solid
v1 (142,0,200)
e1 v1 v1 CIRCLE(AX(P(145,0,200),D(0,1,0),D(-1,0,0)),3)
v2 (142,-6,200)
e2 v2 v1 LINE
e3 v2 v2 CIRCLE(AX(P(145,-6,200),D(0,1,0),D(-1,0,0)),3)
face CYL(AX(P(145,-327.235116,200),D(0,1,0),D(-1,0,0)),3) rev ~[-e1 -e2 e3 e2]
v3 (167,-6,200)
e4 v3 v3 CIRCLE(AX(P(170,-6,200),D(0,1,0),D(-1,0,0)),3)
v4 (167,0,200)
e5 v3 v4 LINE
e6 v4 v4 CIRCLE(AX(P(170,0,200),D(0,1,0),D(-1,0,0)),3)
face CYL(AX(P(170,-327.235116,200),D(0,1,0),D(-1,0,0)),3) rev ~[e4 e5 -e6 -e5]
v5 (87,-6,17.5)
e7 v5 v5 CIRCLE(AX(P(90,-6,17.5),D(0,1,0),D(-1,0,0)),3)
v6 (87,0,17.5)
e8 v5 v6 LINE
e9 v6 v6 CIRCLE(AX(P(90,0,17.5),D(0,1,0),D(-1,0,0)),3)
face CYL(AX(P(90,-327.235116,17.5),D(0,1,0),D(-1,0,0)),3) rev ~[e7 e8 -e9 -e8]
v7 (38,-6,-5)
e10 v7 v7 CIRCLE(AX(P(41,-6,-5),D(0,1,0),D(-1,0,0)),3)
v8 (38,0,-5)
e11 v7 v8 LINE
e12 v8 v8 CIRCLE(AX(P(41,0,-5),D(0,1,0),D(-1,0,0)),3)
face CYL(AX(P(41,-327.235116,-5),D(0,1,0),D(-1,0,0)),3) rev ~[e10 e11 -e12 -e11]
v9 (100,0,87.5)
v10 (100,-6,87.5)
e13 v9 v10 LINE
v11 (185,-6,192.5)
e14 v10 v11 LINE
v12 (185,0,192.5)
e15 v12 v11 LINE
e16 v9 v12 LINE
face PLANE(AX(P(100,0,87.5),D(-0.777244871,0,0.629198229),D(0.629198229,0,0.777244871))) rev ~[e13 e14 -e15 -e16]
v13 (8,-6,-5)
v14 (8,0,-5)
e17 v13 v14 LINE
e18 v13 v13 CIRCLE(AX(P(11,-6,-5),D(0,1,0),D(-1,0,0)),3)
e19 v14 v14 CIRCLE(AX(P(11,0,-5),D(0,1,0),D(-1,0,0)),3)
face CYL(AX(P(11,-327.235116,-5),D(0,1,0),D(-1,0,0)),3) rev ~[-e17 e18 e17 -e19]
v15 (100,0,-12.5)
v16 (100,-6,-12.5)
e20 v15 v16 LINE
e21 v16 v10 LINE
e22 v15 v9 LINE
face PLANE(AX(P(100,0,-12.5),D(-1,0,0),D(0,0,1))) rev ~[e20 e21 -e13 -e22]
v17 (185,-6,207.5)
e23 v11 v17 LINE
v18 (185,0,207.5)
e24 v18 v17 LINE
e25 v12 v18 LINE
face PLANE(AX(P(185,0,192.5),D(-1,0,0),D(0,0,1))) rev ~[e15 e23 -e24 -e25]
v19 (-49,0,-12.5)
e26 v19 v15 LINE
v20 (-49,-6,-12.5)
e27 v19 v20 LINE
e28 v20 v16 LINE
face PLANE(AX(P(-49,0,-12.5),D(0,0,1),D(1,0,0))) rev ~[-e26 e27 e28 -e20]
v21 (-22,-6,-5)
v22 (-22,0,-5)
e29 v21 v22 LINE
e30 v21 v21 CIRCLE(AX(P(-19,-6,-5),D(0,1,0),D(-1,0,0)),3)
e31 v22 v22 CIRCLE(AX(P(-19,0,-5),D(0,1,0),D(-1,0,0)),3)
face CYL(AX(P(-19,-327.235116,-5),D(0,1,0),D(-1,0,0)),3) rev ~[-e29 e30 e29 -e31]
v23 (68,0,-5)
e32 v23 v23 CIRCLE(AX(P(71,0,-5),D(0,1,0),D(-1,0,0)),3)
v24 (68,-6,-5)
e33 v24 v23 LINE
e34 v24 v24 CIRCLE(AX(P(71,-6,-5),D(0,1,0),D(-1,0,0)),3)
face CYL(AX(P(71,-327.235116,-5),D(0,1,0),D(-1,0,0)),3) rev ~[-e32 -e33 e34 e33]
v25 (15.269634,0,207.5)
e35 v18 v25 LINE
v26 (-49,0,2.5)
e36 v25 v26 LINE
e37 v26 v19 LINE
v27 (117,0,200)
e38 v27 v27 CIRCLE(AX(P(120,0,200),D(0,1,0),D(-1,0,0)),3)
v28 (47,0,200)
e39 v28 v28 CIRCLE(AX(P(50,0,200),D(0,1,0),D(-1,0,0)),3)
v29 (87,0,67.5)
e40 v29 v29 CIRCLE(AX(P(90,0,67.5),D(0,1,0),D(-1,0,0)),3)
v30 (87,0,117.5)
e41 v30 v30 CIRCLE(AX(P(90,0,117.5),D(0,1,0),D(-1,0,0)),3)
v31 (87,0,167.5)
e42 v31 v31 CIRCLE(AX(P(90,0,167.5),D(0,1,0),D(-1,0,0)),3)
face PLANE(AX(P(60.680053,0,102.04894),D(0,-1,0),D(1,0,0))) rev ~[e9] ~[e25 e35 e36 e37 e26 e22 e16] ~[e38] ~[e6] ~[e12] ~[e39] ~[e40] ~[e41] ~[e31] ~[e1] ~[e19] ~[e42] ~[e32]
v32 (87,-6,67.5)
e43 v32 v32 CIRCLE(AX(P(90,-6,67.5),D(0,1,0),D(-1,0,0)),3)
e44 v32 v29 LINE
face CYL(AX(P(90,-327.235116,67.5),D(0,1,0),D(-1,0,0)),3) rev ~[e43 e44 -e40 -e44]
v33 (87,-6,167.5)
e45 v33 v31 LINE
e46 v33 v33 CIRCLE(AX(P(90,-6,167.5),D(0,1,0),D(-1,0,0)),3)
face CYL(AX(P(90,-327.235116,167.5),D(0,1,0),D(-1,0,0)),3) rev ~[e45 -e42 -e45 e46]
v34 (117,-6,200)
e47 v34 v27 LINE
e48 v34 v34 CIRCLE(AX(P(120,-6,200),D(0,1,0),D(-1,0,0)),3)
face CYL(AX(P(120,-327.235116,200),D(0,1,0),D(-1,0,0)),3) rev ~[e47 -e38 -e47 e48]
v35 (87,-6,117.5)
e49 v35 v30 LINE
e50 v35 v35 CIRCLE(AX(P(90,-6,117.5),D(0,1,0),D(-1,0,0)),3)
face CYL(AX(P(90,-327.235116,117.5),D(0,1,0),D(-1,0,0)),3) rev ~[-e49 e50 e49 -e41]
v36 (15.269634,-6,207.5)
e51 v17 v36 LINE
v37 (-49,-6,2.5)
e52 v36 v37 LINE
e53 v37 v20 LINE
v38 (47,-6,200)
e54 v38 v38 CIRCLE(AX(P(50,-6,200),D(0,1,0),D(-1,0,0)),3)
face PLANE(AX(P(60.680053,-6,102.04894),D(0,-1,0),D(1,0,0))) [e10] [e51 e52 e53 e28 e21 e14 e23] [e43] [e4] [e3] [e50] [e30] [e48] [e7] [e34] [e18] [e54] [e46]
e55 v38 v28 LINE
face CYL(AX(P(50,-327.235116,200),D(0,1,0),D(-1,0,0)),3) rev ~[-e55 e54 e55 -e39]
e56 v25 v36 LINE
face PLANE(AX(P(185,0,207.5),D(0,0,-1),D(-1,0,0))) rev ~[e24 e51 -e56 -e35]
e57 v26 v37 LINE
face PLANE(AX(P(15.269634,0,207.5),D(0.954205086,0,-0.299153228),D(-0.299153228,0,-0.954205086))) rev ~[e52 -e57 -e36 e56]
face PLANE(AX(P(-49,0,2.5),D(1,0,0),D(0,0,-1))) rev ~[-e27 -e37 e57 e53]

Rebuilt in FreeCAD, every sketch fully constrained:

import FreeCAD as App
import Part
import Sketcher
from FreeCAD import Vector

doc = App.newDocument("Part")
body = doc.addObject("PartDesign::Body", "Body")

sketch1 = doc.addObject("Sketcher::SketchObject", "Sketch")
body.addObject(sketch1)
sketch1.AttachmentSupport = (doc.XZ_Plane, [""])
sketch1.MapMode = "FlatFace"
sketch1.addGeometry([
    Part.LineSegment(Vector(-49, -12.5, 0), Vector(100, -12.5, 0)),
    Part.LineSegment(Vector(100, -12.5, 0), Vector(100, 87.5, 0)),
    Part.LineSegment(Vector(100, 87.5, 0), Vector(185, 192.5, 0)),
    Part.LineSegment(Vector(185, 192.5, 0), Vector(185, 207.5, 0)),
    Part.LineSegment(Vector(185, 207.5, 0), Vector(15.269634, 207.5, 0)),
    Part.LineSegment(Vector(15.269634, 207.5, 0), Vector(-49, 2.5, 0)),
    Part.LineSegment(Vector(-49, 2.5, 0), Vector(-49, -12.5, 0)),
], False)
sketch1.addConstraint([
    Sketcher.Constraint("Coincident", 0, 2, 1, 1),
    Sketcher.Constraint("Coincident", 1, 2, 2, 1),
    Sketcher.Constraint("Coincident", 2, 2, 3, 1),
    Sketcher.Constraint("Coincident", 3, 2, 4, 1),
    Sketcher.Constraint("Coincident", 4, 2, 5, 1),
    Sketcher.Constraint("Coincident", 5, 2, 6, 1),
    Sketcher.Constraint("Coincident", 6, 2, 0, 1),
    Sketcher.Constraint("Horizontal", 0),
    Sketcher.Constraint("Vertical", 1),
    Sketcher.Constraint("Vertical", 3),
    Sketcher.Constraint("Horizontal", 4),
    Sketcher.Constraint("Vertical", 6),
    Sketcher.Constraint("Equal", 3, 6),
    Sketcher.Constraint("DistanceX", 0, 1, 0, 2, 149.0),
    Sketcher.Constraint("DistanceY", 1, 1, 1, 2, 100.0),
    Sketcher.Constraint("DistanceY", 3, 1, 3, 2, 15.0),
    Sketcher.Constraint("DistanceX", -1, 1, 0, 2, 100.0),
    Sketcher.Constraint("DistanceX", -1, 1, 2, 2, 185.0),
    Sketcher.Constraint("DistanceY", 1, 2, 2, 2, 105.0),
    Sketcher.Constraint("DistanceY", 0, 2, -1, 1, 12.5),
    Sketcher.Constraint("Distance", 5, 214.838511),
])
pad1 = doc.addObject("PartDesign::Pad", "Pad")
body.addObject(pad1)
pad1.Profile = sketch1
pad1.Length = 6

sketch2 = doc.addObject("Sketcher::SketchObject", "Sketch001")
body.addObject(sketch2)
sketch2.AttachmentSupport = (doc.XZ_Plane, [""])
sketch2.MapMode = "FlatFace"
sketch2.AttachmentOffset = App.Placement(Vector(0, 0, 6), App.Rotation())
sketch2.addGeometry([
    Part.Circle(Vector(120, 200, 0), Vector(0, 0, 1), 3),
    Part.Circle(Vector(145, 200, 0), Vector(0, 0, 1), 3),
    Part.Circle(Vector(170, 200, 0), Vector(0, 0, 1), 3),
    Part.Circle(Vector(90, 167.5, 0), Vector(0, 0, 1), 3),
    Part.Circle(Vector(90, 117.5, 0), Vector(0, 0, 1), 3),
    Part.Circle(Vector(90, 67.5, 0), Vector(0, 0, 1), 3),
    Part.Circle(Vector(90, 17.5, 0), Vector(0, 0, 1), 3),
    Part.Circle(Vector(41, -5, 0), Vector(0, 0, 1), 3),
    Part.Circle(Vector(11, -5, 0), Vector(0, 0, 1), 3),
    Part.Circle(Vector(-19, -5, 0), Vector(0, 0, 1), 3),
    Part.Circle(Vector(71, -5, 0), Vector(0, 0, 1), 3),
    Part.Circle(Vector(50, 200, 0), Vector(0, 0, 1), 3),
], False)
sketch2.addConstraint([
    Sketcher.Constraint("Equal", 0, 1),
    Sketcher.Constraint("Equal", 1, 2),
    Sketcher.Constraint("Equal", 2, 3),
    Sketcher.Constraint("Equal", 3, 4),
    Sketcher.Constraint("Equal", 4, 5),
    Sketcher.Constraint("Equal", 5, 6),
    Sketcher.Constraint("Equal", 6, 7),
    Sketcher.Constraint("Equal", 7, 8),
    Sketcher.Constraint("Equal", 8, 9),
    Sketcher.Constraint("Equal", 9, 10),
    Sketcher.Constraint("Equal", 10, 11),
    Sketcher.Constraint("Horizontal", 0, 3, 1, 3),
    Sketcher.Constraint("Horizontal", 1, 3, 2, 3),
    Sketcher.Constraint("Horizontal", 7, 3, 8, 3),
    Sketcher.Constraint("Horizontal", 8, 3, 9, 3),
    Sketcher.Constraint("Horizontal", 9, 3, 10, 3),
    Sketcher.Constraint("Horizontal", 2, 3, 11, 3),
    Sketcher.Constraint("Vertical", 3, 3, 4, 3),
    Sketcher.Constraint("Vertical", 4, 3, 5, 3),
    Sketcher.Constraint("Vertical", 5, 3, 6, 3),
    Sketcher.Constraint("Diameter", 0, 6.0),
    Sketcher.Constraint("DistanceX", -1, 1, 0, 3, 120.0),
    Sketcher.Constraint("DistanceY", -1, 1, 0, 3, 200.0),
    Sketcher.Constraint("DistanceX", -1, 1, 1, 3, 145.0),
    Sketcher.Constraint("DistanceX", -1, 1, 2, 3, 170.0),
    Sketcher.Constraint("DistanceX", -1, 1, 3, 3, 90.0),
    Sketcher.Constraint("DistanceX", -1, 1, 7, 3, 41.0),
    Sketcher.Constraint("DistanceY", 7, 3, -1, 1, 5.0),
    Sketcher.Constraint("DistanceX", -1, 1, 8, 3, 11.0),
    Sketcher.Constraint("DistanceX", 9, 3, -1, 1, 19.0),
    Sketcher.Constraint("DistanceX", -1, 1, 10, 3, 71.0),
    Sketcher.Constraint("DistanceX", -1, 1, 11, 3, 50.0),
    Sketcher.Constraint("DistanceY", 4, 3, 3, 3, 50.0),
    Sketcher.Constraint("DistanceY", 5, 3, 4, 3, 50.0),
    Sketcher.Constraint("DistanceY", 6, 3, 5, 3, 50.0),
    Sketcher.Constraint("DistanceY", -1, 1, 3, 3, 167.5),
])
doc.recompute()
hole = doc.addObject("PartDesign::Hole", "Hole")
body.addObject(hole)
hole.Profile = sketch2
hole.ThreadType = "None"
hole.Diameter = 6
hole.DepthType = "ThroughAll"

doc.recompute()
